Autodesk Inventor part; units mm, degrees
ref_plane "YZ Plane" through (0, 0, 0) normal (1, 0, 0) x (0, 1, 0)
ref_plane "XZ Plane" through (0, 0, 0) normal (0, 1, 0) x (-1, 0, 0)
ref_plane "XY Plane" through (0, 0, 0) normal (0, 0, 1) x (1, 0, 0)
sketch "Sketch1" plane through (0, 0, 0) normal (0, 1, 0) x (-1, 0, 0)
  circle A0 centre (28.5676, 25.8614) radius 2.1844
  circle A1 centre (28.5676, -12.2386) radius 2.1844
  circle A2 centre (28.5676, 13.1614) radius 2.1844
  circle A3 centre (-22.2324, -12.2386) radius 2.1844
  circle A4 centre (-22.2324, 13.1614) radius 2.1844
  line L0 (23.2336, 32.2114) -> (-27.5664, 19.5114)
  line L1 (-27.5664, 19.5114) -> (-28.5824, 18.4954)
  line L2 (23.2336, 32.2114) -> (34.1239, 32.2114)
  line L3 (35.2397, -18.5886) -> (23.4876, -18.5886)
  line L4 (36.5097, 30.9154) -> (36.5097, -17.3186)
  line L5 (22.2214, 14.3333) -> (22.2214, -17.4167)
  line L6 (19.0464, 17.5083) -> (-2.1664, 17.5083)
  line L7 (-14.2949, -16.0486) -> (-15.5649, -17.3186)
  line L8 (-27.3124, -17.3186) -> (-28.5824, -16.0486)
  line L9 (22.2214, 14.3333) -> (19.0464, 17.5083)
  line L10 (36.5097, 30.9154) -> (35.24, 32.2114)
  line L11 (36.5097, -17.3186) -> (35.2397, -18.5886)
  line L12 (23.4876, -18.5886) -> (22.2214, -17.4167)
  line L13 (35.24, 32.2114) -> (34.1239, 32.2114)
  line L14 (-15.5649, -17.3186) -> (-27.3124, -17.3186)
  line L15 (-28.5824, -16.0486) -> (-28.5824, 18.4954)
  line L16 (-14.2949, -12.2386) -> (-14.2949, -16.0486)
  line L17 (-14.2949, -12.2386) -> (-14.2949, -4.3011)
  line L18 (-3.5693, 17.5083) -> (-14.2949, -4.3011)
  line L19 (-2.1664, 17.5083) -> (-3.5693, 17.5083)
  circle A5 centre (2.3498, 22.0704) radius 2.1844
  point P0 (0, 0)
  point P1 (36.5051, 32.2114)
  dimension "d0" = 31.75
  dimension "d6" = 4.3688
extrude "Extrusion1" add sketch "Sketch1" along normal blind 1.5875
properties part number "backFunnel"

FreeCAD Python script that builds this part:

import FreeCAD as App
import Part
import Sketcher
from FreeCAD import Vector
Q = App.Units.Quantity

doc = App.newDocument("Part")
body = doc.addObject("PartDesign::Body", "Body")

sketch1 = doc.addObject("Sketcher::SketchObject", "Sketch")
body.addObject(sketch1)
sketch1.AttachmentSupport = (doc.XZ_Plane, [""])
sketch1.MapMode = "FlatFace"
sketch1.addGeometry([
    Part.LineSegment(Vector(-35.24, 32.2114, 0), Vector(-23.2336, 32.2114, 0)),
    Part.LineSegment(Vector(-23.2336, 32.2114, 0), Vector(27.5664, 19.5114, 0)),
    Part.LineSegment(Vector(27.5664, 19.5114, 0), Vector(28.5824, 18.4954, 0)),
    Part.LineSegment(Vector(28.5824, 18.4954, 0), Vector(28.5824, -16.0486, 0)),
    Part.LineSegment(Vector(28.5824, -16.0486, 0), Vector(27.3124, -17.3186, 0)),
    Part.LineSegment(Vector(27.3124, -17.3186, 0), Vector(15.5649, -17.3186, 0)),
    Part.LineSegment(Vector(15.5649, -17.3186, 0), Vector(14.2949, -16.0486, 0)),
    Part.LineSegment(Vector(14.2949, -16.0486, 0), Vector(14.2949, -4.3011, 0)),
    Part.LineSegment(Vector(14.2949, -4.3011, 0), Vector(3.5693, 17.5083, 0)),
    Part.LineSegment(Vector(3.5693, 17.5083, 0), Vector(-19.0464, 17.5083, 0)),
    Part.LineSegment(Vector(-19.0464, 17.5083, 0), Vector(-22.2214, 14.3333, 0)),
    Part.LineSegment(Vector(-22.2214, 14.3333, 0), Vector(-22.2214, -17.4167, 0)),
    Part.LineSegment(Vector(-22.2214, -17.4167, 0), Vector(-23.4876, -18.5886, 0)),
    Part.LineSegment(Vector(-23.4876, -18.5886, 0), Vector(-35.2397, -18.5886, 0)),
    Part.LineSegment(Vector(-35.2397, -18.5886, 0), Vector(-36.5097, -17.3186, 0)),
    Part.LineSegment(Vector(-36.5097, -17.3186, 0), Vector(-36.5097, 30.9154, 0)),
    Part.LineSegment(Vector(-36.5097, 30.9154, 0), Vector(-35.24, 32.2114, 0)),
    Part.Circle(Vector(22.2324, -12.2386, 0), Vector(0, 0, 1), 2.1844),
    Part.Circle(Vector(-28.5676, -12.2386, 0), Vector(0, 0, 1), 2.1844),
    Part.Circle(Vector(22.2324, 13.1614, 0), Vector(0, 0, 1), 2.1844),
    Part.Circle(Vector(-2.3498, 22.0704, 0), Vector(0, 0, 1), 2.1844),
    Part.Circle(Vector(-28.5676, 13.1614, 0), Vector(0, 0, 1), 2.1844),
    Part.Circle(Vector(-28.5676, 25.8614, 0), Vector(0, 0, 1), 2.1844),
], False)
sketch1.addConstraint([
    Sketcher.Constraint("Coincident", 0, 2, 1, 1),
    Sketcher.Constraint("Coincident", 1, 2, 2, 1),
    Sketcher.Constraint("Coincident", 2, 2, 3, 1),
    Sketcher.Constraint("Coincident", 3, 2, 4, 1),
    Sketcher.Constraint("Coincident", 4, 2, 5, 1),
    Sketcher.Constraint("Coincident", 5, 2, 6, 1),
    Sketcher.Constraint("Coincident", 6, 2, 7, 1),
    Sketcher.Constraint("Coincident", 7, 2, 8, 1),
    Sketcher.Constraint("Coincident", 8, 2, 9, 1),
    Sketcher.Constraint("Coincident", 9, 2, 10, 1),
    Sketcher.Constraint("Coincident", 10, 2, 11, 1),
    Sketcher.Constraint("Coincident", 11, 2, 12, 1),
    Sketcher.Constraint("Coincident", 12, 2, 13, 1),
    Sketcher.Constraint("Coincident", 13, 2, 14, 1),
    Sketcher.Constraint("Coincident", 14, 2, 15, 1),
    Sketcher.Constraint("Coincident", 15, 2, 16, 1),
    Sketcher.Constraint("Coincident", 16, 2, 0, 1),
    Sketcher.Constraint("Horizontal", 0),
    Sketcher.Constraint("Vertical", 3),
    Sketcher.Constraint("Horizontal", 5),
    Sketcher.Constraint("Vertical", 7),
    Sketcher.Constraint("Horizontal", 9),
    Sketcher.Constraint("Vertical", 11),
    Sketcher.Constraint("Horizontal", 13),
    Sketcher.Constraint("Vertical", 15),
    Sketcher.Constraint("Equal", 17, 18),
    Sketcher.Constraint("Equal", 18, 19),
    Sketcher.Constraint("Equal", 19, 20),
    Sketcher.Constraint("Equal", 20, 21),
    Sketcher.Constraint("Equal", 21, 22),
    Sketcher.Constraint("Perpendicular", 2, 4),
    Sketcher.Constraint("Perpendicular", 4, 6),
    Sketcher.Constraint("Perpendicular", 6, 10),
    Sketcher.Constraint("Perpendicular", 10, 14),
    Sketcher.Constraint("Horizontal", 17, 3, 18, 3),
    Sketcher.Constraint("Horizontal", 19, 3, 21, 3),
    Sketcher.Constraint("Horizontal", 3, 2, 6, 2),
    Sketcher.Constraint("Horizontal", 5, 2, 14, 2),
    Sketcher.Constraint("Vertical", 17, 3, 19, 3),
    Sketcher.Constraint("Vertical", 18, 3, 21, 3),
    Sketcher.Constraint("Vertical", 21, 3, 22, 3),
    Sketcher.Constraint("Equal", 5, 7),
    Sketcher.Constraint("Equal", 4, 6),
    Sketcher.Constraint("Equal", 6, 14),
    Sketcher.Constraint("Diameter", 17, Q("0.172 in")),
    Sketcher.Constraint("DistanceY", 11, 2, 11, 1, Q("1.25 in")),
    Sketcher.Constraint("DistanceY", 17, 3, 1, 2, Q("1.25 in")),
    Sketcher.Constraint("DistanceY", 12, 2, 21, 3, Q("1.25 in")),
    Sketcher.Constraint("DistanceX", 18, 3, 17, 3, Q("2 in")),
    Sketcher.Constraint("DistanceY", 17, 3, 19, 3, Q("1 in")),
    Sketcher.Constraint("DistanceX", 0, 2, 1, 2, Q("2 in")),
    Sketcher.Constraint("DistanceY", 3, 2, 3, 1, Q("1.36 in")),
    Sketcher.Constraint("DistanceY", 21, 3, 22, 3, Q("0.5 in")),
    Sketcher.Constraint("DistanceY", 1, 2, 0, 2, Q("0.5 in")),
    Sketcher.Constraint("DistanceY", 3, 2, 1, 2, Q("1.4 in")),
    Sketcher.Constraint("DistanceX", 17, 3, 4, 2, Q("0.2 in")),
    Sketcher.Constraint("DistanceX", 18, 3, 12, 2, Q("0.2 in")),
    Sketcher.Constraint("DistanceX", 15, 2, 16, 2, Q("0.05 in")),
    Sketcher.Constraint("DistanceX", 0, 1, 0, 2, Q("0.4727 in")),
    Sketcher.Constraint("DistanceX", 5, 2, 5, 1, Q("0.4625 in")),
    Sketcher.Constraint("DistanceX", 10, 2, 9, 2, Q("0.125 in")),
    Sketcher.Constraint("DistanceX", 9, 2, 9, 1, Q("22.6157 mm")),
    Sketcher.Constraint("DistanceY", 15, 1, 15, 2, Q("48.234 mm")),
    Sketcher.Constraint("DistanceX", -1, 1, 17, 3, Q("0.8753 in")),
    Sketcher.Constraint("DistanceX", 20, 3, -1, 1, Q("0.0925 in")),
    Sketcher.Constraint("DistanceY", -1, 1, 8, 2, Q("0.6893 in")),
    Sketcher.Constraint("DistanceY", 8, 2, 20, 3, Q("0.1796 in")),
    Sketcher.Constraint("Distance", 8, Q("24.304 mm")),
    Sketcher.Constraint("Distance", 12, Q("1.7253 mm")),
])
pad1 = doc.addObject("PartDesign::Pad", "Pad")
body.addObject(pad1)
pad1.Profile = sketch1
pad1.Length = Q("0.0625 in")
pad1.Reversed = True

doc.recompute()
